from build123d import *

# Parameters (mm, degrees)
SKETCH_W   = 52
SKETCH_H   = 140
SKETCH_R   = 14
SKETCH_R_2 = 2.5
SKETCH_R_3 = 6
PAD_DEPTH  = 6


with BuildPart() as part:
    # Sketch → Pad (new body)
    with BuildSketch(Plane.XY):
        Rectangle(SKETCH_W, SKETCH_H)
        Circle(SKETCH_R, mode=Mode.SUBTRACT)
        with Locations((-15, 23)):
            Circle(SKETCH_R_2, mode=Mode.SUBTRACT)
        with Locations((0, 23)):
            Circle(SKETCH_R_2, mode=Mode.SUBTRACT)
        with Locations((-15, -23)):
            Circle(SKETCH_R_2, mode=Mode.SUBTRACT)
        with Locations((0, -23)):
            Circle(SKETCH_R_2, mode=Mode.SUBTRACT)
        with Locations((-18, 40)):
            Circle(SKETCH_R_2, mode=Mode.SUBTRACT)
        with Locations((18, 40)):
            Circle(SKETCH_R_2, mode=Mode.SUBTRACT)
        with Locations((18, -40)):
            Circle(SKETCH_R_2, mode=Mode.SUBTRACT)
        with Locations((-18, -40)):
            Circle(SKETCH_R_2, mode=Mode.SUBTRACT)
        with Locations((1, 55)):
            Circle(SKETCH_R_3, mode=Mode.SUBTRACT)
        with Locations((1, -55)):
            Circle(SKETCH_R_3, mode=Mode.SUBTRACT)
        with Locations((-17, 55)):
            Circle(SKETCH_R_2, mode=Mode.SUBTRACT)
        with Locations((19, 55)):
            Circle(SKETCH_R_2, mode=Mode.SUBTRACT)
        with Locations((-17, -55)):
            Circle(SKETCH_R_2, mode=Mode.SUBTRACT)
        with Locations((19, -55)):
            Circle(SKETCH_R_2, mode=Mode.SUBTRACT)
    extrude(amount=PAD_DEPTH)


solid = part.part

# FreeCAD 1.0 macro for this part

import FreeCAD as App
import Part
import Sketcher

V = App.Vector


def add_polygon(sketch, points):
    """Adds a closed chain of lines whose ends are joined by coincident constraints."""
    first, n = sketch.GeometryCount, len(points)
    for a, b in zip(points, points[1:] + points[:1]):
        sketch.addGeometry(Part.LineSegment(App.Vector(*a, 0), App.Vector(*b, 0)), False)
    for i in range(n):
        sketch.addConstraint(Sketcher.Constraint("Coincident", first + i, 2, first + (i + 1) % n, 1))

doc = App.newDocument("Part")
params = doc.addObject("Spreadsheet::Sheet", "Params")
for row, (alias, value) in enumerate([
    ("sketch1_diameter", "5 mm"),
    ("sketch1_diameter2", "12 mm"),
    ("sketch1_diameter3", "28 mm"),
    ("sketch1_width", "52 mm"),
    ("sketch1_height", "140 mm"),
    ("pad1_length", "6 mm"),
], start=1):
    params.set(f"A{row}", alias)
    params.set(f"B{row}", "=" + value)
    params.setAlias(f"B{row}", alias)

body = doc.addObject("PartDesign::Body", "Body")

# Sketch on XY plane
sketch1 = body.newObject("Sketcher::SketchObject", "Sketch")
sketch1.AttachmentSupport = (doc.getObject("XY_Plane"), [""])
sketch1.MapMode = "FlatFace"
add_polygon(sketch1, [(-26, 70), (-26, -70), (26, -70), (26, 70)])  # lines 0-3
sketch1.addGeometry(Part.Circle(V(-17, -55, 0), V(0, 0, 1), 2.5), False)  # 4
sketch1.addGeometry(Part.Circle(V(-18, -40, 0), V(0, 0, 1), 2.5), False)  # 5
sketch1.addGeometry(Part.Circle(V(-15, -23, 0), V(0, 0, 1), 2.5), False)  # 6
sketch1.addGeometry(Part.Circle(V(0, -23, 0), V(0, 0, 1), 2.5), False)  # 7
sketch1.addGeometry(Part.Circle(V(1, -55, 0), V(0, 0, 1), 6), False)  # 8
sketch1.addGeometry(Part.Circle(V(19, -55, 0), V(0, 0, 1), 2.5), False)  # 9
sketch1.addGeometry(Part.Circle(V(18, -40, 0), V(0, 0, 1), 2.5), False)  # 10
sketch1.addGeometry(Part.Circle(V(-15, 23, 0), V(0, 0, 1), 2.5), False)  # 11
sketch1.addGeometry(Part.Circle(V(0, 0, 0), V(0, 0, 1), 14), False)  # 12
sketch1.addGeometry(Part.Circle(V(0, 23, 0), V(0, 0, 1), 2.5), False)  # 13
sketch1.addGeometry(Part.Circle(V(-18, 40, 0), V(0, 0, 1), 2.5), False)  # 14
sketch1.addGeometry(Part.Circle(V(-17, 55, 0), V(0, 0, 1), 2.5), False)  # 15
sketch1.addGeometry(Part.Circle(V(1, 55, 0), V(0, 0, 1), 6), False)  # 16
sketch1.addGeometry(Part.Circle(V(18, 40, 0), V(0, 0, 1), 2.5), False)  # 17
sketch1.addGeometry(Part.Circle(V(19, 55, 0), V(0, 0, 1), 2.5), False)  # 18
sketch1.addConstraint([
    Sketcher.Constraint("Vertical", 0),
    Sketcher.Constraint("Horizontal", 1),
    Sketcher.Constraint("Vertical", 2),
    Sketcher.Constraint("Horizontal", 3),
    Sketcher.Constraint("Coincident", 12, 3, -1, 1),
    Sketcher.Constraint("Equal", 4, 5),
    Sketcher.Constraint("Equal", 5, 6),
    Sketcher.Constraint("Equal", 6, 7),
    Sketcher.Constraint("Equal", 7, 9),
    Sketcher.Constraint("Equal", 9, 10),
    Sketcher.Constraint("Equal", 10, 11),
    Sketcher.Constraint("Equal", 11, 13),
    Sketcher.Constraint("Equal", 13, 14),
    Sketcher.Constraint("Equal", 14, 15),
    Sketcher.Constraint("Equal", 8, 16),
    Sketcher.Constraint("Equal", 15, 17),
    Sketcher.Constraint("Equal", 17, 18),
    Sketcher.Constraint("Symmetric", 7, 3, 13, 3, -1, 1),
    Sketcher.Constraint("Symmetric", 10, 3, 14, 3, -1, 1),
    Sketcher.Constraint("Symmetric", 5, 3, 17, 3, -1, 1),
    Sketcher.Constraint("Symmetric", 0, 2, 2, 2, -1, 1),
    Sketcher.Constraint("Symmetric", 5, 3, 10, 3, -2),
    Sketcher.Constraint("Symmetric", 6, 3, 11, 3, -1),
    Sketcher.Constraint("Symmetric", 4, 3, 15, 3, -1),
    Sketcher.Constraint("Symmetric", 8, 3, 16, 3, -1),
    Sketcher.Constraint("Symmetric", 9, 3, 18, 3, -1),
    Sketcher.Constraint("PointOnObject", 7, 3, -2),
    Sketcher.Constraint("Horizontal", 6, 3, 7, 3),
    Sketcher.Constraint("Horizontal", 4, 3, 8, 3),
    Sketcher.Constraint("Horizontal", 8, 3, 9, 3),
    Sketcher.Constraint("Diameter", 4, 5.0),
    Sketcher.Constraint("Diameter", 8, 12.0),
    Sketcher.Constraint("Diameter", 12, 28.0),
    Sketcher.Constraint("DistanceX", 1, 1, 1, 2, 52.0),
    Sketcher.Constraint("DistanceY", 0, 2, 0, 1, 140.0),
    Sketcher.Constraint("DistanceX", 4, 3, -1, 1, 17.0),
    Sketcher.Constraint("DistanceY", 4, 3, -1, 1, 55.0),
    Sketcher.Constraint("DistanceX", 5, 3, -1, 1, 18.0),
    Sketcher.Constraint("DistanceY", 5, 3, -1, 1, 40.0),
    Sketcher.Constraint("DistanceX", 6, 3, -1, 1, 15.0),
    Sketcher.Constraint("DistanceY", 6, 3, -1, 1, 23.0),
    Sketcher.Constraint("DistanceX", -1, 1, 8, 3, 1.0),
    Sketcher.Constraint("DistanceX", -1, 1, 9, 3, 19.0),
])
sketch1.setExpression("Constraints[34]", "Params.sketch1_diameter")
sketch1.setExpression("Constraints[35]", "Params.sketch1_diameter2")
sketch1.setExpression("Constraints[36]", "Params.sketch1_diameter3")
sketch1.setExpression("Constraints[37]", "Params.sketch1_width")
sketch1.setExpression("Constraints[38]", "Params.sketch1_height")
pad1 = body.newObject("PartDesign::Pad", "Pad")
pad1.Profile = sketch1
pad1.setExpression("Length", "Params.pad1_length")

doc.recompute()
